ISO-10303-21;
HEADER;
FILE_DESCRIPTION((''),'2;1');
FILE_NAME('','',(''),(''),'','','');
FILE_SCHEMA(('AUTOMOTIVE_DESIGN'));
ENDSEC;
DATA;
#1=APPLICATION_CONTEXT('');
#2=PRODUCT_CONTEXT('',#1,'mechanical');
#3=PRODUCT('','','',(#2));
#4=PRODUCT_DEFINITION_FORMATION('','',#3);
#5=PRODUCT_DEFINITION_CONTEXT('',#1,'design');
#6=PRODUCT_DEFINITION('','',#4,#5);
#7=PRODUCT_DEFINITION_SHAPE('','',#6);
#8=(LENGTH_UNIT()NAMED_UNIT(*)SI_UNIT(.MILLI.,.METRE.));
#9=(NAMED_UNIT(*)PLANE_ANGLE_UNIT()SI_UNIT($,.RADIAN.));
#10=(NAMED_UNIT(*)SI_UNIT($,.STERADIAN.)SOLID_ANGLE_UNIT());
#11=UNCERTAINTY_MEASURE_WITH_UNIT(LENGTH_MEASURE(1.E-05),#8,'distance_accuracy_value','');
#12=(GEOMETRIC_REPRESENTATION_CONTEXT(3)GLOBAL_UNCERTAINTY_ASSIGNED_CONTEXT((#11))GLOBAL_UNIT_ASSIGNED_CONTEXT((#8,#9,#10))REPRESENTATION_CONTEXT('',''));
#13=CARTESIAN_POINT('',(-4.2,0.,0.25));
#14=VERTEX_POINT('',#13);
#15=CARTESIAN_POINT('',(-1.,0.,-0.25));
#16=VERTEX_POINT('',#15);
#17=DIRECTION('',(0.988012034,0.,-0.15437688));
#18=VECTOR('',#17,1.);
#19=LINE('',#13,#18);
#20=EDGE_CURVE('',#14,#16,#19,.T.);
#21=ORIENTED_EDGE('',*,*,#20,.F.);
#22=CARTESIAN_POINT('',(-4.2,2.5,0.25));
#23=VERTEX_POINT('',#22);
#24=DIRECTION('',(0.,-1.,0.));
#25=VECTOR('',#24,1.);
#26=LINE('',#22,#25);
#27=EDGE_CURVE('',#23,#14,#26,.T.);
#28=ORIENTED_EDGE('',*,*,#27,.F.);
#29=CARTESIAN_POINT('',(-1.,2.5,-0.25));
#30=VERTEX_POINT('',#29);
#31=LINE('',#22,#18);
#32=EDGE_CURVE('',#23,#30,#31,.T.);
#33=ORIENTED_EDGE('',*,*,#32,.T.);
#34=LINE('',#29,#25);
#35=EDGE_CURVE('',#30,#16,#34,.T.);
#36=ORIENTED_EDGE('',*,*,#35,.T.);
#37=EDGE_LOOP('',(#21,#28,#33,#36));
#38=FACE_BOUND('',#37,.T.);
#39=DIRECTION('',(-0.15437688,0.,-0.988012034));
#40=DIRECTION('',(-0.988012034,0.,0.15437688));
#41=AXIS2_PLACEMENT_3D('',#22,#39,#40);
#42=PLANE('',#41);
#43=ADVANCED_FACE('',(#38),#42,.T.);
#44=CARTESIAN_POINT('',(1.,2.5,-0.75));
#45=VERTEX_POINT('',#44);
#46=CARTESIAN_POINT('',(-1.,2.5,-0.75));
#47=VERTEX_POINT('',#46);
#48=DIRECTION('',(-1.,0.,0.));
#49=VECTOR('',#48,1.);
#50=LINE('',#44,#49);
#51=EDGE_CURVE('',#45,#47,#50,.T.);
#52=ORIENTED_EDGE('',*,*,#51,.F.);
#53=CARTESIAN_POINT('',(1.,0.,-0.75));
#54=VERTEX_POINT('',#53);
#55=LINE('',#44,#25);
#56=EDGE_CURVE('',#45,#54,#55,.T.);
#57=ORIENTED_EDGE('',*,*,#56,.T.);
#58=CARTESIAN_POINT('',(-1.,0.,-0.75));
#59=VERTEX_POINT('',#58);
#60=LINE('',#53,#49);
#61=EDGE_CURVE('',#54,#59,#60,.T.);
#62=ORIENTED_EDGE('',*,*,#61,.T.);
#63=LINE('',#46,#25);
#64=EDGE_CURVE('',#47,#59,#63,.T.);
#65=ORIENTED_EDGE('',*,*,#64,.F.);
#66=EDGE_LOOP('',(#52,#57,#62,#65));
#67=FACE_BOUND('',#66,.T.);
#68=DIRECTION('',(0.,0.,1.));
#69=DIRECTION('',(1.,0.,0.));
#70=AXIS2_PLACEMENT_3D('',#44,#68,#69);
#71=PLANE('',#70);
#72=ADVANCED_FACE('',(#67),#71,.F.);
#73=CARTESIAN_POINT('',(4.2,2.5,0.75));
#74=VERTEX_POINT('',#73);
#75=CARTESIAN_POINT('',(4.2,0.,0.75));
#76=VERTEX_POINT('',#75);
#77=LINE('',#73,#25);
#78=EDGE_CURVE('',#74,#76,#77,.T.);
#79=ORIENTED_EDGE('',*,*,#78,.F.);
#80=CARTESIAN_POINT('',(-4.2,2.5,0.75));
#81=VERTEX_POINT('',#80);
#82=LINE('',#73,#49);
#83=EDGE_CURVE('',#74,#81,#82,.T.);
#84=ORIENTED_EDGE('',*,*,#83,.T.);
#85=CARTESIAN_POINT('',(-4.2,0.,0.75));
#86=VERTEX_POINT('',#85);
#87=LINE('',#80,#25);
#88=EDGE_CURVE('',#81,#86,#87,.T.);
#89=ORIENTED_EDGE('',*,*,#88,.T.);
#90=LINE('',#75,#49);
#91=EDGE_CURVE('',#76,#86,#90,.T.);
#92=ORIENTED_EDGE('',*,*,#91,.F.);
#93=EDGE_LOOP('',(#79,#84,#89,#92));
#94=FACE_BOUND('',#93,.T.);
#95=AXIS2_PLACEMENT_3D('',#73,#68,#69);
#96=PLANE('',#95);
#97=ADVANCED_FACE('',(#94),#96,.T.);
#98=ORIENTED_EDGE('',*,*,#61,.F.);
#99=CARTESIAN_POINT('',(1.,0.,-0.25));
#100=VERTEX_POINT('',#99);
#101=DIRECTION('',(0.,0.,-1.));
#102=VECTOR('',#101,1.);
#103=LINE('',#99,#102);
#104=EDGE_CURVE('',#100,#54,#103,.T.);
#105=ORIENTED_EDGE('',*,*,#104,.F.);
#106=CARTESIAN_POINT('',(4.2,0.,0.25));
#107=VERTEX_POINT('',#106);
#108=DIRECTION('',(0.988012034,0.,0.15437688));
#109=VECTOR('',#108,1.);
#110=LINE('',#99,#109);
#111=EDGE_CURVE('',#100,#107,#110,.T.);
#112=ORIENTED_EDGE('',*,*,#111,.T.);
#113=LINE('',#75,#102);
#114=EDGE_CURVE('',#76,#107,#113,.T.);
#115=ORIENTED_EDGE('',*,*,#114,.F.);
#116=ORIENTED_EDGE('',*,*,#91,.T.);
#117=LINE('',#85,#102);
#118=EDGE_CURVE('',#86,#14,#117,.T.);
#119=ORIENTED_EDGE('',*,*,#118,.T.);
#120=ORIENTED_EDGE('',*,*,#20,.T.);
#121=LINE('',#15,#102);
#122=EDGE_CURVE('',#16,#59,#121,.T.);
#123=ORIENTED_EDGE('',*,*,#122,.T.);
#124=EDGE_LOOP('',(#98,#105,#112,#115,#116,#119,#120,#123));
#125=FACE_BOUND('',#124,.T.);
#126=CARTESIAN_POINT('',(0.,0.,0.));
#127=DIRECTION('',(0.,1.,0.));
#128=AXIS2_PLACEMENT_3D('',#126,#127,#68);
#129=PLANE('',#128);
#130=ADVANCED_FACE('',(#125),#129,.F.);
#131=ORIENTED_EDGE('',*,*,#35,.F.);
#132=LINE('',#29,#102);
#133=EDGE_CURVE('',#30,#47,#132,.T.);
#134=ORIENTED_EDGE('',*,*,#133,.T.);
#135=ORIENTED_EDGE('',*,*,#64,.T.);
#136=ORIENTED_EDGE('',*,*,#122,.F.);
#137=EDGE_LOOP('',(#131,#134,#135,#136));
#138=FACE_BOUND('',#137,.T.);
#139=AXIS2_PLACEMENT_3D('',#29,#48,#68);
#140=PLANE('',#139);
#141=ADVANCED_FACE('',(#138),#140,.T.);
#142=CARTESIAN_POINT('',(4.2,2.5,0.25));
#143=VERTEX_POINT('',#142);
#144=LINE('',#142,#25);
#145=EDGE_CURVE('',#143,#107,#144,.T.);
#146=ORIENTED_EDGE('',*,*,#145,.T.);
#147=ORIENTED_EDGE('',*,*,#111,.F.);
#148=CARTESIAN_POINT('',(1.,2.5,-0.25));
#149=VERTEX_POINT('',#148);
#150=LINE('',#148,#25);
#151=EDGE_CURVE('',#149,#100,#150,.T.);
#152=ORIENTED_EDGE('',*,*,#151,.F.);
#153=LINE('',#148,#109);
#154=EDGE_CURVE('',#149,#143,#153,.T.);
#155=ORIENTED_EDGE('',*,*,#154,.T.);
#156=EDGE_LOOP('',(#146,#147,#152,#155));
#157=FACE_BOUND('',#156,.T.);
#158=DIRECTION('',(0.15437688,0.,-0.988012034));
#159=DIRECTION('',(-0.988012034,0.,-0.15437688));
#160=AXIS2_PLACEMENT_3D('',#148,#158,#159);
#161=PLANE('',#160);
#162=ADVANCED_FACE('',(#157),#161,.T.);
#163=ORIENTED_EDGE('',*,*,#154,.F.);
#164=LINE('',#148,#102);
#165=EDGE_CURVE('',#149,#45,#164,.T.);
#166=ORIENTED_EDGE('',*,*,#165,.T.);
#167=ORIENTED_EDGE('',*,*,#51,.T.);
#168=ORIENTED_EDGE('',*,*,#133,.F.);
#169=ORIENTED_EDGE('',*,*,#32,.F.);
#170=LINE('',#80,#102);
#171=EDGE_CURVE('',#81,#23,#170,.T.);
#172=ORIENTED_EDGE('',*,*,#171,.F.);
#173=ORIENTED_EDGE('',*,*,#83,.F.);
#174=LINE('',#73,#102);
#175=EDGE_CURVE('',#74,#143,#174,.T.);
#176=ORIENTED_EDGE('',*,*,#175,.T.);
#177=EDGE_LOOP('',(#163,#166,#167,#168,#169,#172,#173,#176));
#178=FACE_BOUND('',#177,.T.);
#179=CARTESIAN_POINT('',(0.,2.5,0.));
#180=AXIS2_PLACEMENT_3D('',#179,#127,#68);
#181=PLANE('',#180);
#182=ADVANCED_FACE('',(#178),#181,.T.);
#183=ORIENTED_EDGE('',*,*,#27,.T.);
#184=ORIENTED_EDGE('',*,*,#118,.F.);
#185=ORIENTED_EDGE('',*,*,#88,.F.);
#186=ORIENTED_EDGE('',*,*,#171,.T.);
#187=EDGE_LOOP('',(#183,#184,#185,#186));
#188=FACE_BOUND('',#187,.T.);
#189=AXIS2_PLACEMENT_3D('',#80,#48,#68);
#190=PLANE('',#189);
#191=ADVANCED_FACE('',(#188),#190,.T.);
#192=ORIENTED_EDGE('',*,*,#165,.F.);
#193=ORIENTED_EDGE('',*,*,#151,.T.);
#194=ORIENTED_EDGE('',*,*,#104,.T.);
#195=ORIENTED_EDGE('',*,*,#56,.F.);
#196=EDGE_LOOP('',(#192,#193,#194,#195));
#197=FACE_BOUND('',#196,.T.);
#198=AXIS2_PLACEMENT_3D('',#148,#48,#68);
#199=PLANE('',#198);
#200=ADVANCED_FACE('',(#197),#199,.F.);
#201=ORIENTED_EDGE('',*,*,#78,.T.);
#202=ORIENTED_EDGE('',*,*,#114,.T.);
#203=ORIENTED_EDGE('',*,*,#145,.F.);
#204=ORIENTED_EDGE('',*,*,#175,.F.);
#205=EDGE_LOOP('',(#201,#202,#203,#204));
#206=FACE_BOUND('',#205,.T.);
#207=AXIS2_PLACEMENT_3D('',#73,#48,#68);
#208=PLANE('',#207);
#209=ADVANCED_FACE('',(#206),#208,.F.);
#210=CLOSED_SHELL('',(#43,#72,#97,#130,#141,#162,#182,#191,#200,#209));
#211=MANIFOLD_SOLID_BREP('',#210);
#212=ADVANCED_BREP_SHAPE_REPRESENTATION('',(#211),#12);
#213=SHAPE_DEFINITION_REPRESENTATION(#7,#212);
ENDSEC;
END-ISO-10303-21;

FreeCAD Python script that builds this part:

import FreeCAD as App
import Part
import Sketcher


def add_polygon(sketch, points):
    """Adds a closed chain of lines whose ends are joined by coincident constraints."""
    first, n = sketch.GeometryCount, len(points)
    for a, b in zip(points, points[1:] + points[:1]):
        sketch.addGeometry(Part.LineSegment(App.Vector(*a, 0), App.Vector(*b, 0)), False)
    for i in range(n):
        sketch.addConstraint(Sketcher.Constraint("Coincident", first + i, 2, first + (i + 1) % n, 1))

doc = App.newDocument("Part")
params = doc.addObject("Spreadsheet::Sheet", "Params")
for row, (alias, value) in enumerate([
    ("sketch1_width", "2 mm"),
    ("sketch1_width2", "8.4 mm"),
    ("sketch1_height", "0.5 mm"),
    ("pad1_length", "2.5 mm"),
], start=1):
    params.set(f"A{row}", alias)
    params.set(f"B{row}", "=" + value)
    params.setAlias(f"B{row}", alias)

body = doc.addObject("PartDesign::Body", "Body")

sketch1 = body.newObject("Sketcher::SketchObject", "Sketch")
sketch1.AttachmentSupport = (doc.getObject("XZ_Plane"), [""])
sketch1.MapMode = "FlatFace"
add_polygon(sketch1, [(-4.2, 0.8), (4.2, 0.8), (4.2, 0.2), (1, -0.2), (1, -0.8), (-1, -0.8), (-1, -0.2), (-4.2, 0.2)])
sketch1.addConstraint(Sketcher.Constraint("Horizontal", 0))
sketch1.addConstraint(Sketcher.Constraint("Vertical", 1))
sketch1.addConstraint(Sketcher.Constraint("Vertical", 3))
sketch1.addConstraint(Sketcher.Constraint("Horizontal", 4))
sketch1.addConstraint(Sketcher.Constraint("Vertical", 5))
sketch1.addConstraint(Sketcher.Constraint("Vertical", 7))
sketch1.addConstraint(Sketcher.Constraint("Symmetric", 2, 2, 5, 2, -2))
sketch1.addConstraint(Sketcher.Constraint("Symmetric", 1, 2, 6, 2, -2))
sketch1.addConstraint(Sketcher.Constraint("Equal", 1, 3))
sketch1.addConstraint(Sketcher.Constraint("DistanceX", 4, 2, 4, 1, 2.0))
sketch1.addConstraint(Sketcher.Constraint("DistanceX", 0, 1, 0, 2, 8.4))
sketch1.addConstraint(Sketcher.Constraint("DistanceY", 1, 2, 1, 1, 0.5))
sketch1.addConstraint(Sketcher.Constraint("DistanceY", 2, 2, 0, 2, 1.0))
sketch1.addConstraint(Sketcher.Constraint("DistanceY", -1, 1, 0, 2, 0.75))
sketch1.setExpression("Constraints[17]", "Params.sketch1_width")
sketch1.setExpression("Constraints[18]", "Params.sketch1_width2")
sketch1.setExpression("Constraints[19]", "Params.sketch1_height")
pad1 = body.newObject("PartDesign::Pad", "Pad")
pad1.Profile = sketch1
pad1.setExpression("Length", "Params.pad1_length")
pad1.Reversed = True

doc.recompute()
